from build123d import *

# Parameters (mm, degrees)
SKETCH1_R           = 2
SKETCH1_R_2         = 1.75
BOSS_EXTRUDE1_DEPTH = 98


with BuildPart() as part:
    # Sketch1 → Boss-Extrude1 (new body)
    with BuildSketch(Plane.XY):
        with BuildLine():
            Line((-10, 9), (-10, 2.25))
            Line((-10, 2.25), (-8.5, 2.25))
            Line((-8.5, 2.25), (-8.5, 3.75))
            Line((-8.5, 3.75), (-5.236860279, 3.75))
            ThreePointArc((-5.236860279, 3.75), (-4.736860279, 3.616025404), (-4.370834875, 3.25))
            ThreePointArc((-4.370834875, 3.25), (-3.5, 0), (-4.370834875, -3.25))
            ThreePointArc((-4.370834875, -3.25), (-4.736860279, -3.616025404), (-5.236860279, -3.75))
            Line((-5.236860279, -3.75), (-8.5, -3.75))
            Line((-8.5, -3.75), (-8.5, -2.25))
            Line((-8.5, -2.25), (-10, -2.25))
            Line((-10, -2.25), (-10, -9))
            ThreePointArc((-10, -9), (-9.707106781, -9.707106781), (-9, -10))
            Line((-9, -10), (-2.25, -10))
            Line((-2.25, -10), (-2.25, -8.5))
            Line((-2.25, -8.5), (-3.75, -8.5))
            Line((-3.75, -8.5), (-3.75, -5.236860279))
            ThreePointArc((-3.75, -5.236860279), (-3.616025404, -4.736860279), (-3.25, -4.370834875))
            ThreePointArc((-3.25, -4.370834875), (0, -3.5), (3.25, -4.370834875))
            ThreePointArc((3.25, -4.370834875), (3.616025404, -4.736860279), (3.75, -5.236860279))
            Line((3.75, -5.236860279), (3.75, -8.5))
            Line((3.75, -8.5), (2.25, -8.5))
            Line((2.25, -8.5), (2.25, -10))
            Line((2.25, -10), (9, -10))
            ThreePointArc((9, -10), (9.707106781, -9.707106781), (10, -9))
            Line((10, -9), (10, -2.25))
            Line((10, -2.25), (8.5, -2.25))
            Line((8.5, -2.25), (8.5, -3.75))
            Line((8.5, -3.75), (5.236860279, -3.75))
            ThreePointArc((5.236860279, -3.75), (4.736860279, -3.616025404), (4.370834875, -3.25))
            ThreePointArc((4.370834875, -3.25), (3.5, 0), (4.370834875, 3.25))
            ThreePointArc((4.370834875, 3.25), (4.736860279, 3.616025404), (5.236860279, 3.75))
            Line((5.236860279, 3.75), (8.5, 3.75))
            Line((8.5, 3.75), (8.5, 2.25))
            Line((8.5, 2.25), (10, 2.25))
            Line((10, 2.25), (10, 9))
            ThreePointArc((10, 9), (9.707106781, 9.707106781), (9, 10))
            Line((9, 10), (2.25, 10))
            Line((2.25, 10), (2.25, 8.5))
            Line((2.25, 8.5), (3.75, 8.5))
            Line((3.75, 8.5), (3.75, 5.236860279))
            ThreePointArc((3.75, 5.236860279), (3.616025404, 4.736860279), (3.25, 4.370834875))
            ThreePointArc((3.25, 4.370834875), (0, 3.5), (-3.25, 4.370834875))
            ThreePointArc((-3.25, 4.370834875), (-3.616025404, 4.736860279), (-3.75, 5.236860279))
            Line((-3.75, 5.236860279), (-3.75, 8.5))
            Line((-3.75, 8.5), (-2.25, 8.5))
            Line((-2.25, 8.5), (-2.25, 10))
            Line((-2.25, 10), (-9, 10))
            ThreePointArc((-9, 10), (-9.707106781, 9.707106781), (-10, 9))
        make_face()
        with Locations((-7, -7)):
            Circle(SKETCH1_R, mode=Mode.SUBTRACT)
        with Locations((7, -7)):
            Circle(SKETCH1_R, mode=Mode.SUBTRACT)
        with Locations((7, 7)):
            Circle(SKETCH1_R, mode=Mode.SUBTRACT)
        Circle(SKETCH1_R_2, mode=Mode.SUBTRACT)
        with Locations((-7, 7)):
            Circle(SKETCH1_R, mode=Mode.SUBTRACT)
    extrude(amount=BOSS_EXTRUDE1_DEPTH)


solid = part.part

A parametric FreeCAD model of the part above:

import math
import FreeCAD as App
import Part
import Sketcher

V = App.Vector
Q = App.Units.Quantity

doc = App.newDocument("Part")
body = doc.addObject("PartDesign::Body", "Body")

sketch1 = body.newObject("Sketcher::SketchObject", "Sketch")
sketch1.AttachmentSupport = (doc.getObject("XY_Plane"), [""])
sketch1.MapMode = "FlatFace"
sketch1.addGeometry(Part.LineSegment(V(-10, 9, 0), V(-10, 2.2, 0)), False)
sketch1.addGeometry(Part.LineSegment(V(-10, 2.2, 0), V(-8.5, 2.2, 0)), False)
sketch1.addGeometry(Part.LineSegment(V(-8.5, 2.2, 0), V(-8.5, 3.8, 0)), False)
sketch1.addGeometry(Part.LineSegment(V(-8.5, 3.8, 0), V(-5.2, 3.8, 0)), False)
sketch1.addGeometry(Part.ArcOfCircle(Part.Circle(V(-5.2, 2.8, 0), V(0, 0, 1), 1), math.radians(30), math.radians(90)), False)
sketch1.addGeometry(Part.ArcOfCircle(Part.Circle(V(-10, 0, 0), V(0, 0, 1), 6.5), math.radians(-30), math.radians(30)), False)
sketch1.addGeometry(Part.ArcOfCircle(Part.Circle(V(-5.2, -2.8, 0), V(0, 0, 1), 1), math.radians(-90), math.radians(-30)), False)
sketch1.addGeometry(Part.LineSegment(V(-5.2, -3.8, 0), V(-8.5, -3.8, 0)), False)
sketch1.addGeometry(Part.LineSegment(V(-8.5, -3.8, 0), V(-8.5, -2.2, 0)), False)
sketch1.addGeometry(Part.LineSegment(V(-8.5, -2.2, 0), V(-10, -2.2, 0)), False)
sketch1.addGeometry(Part.LineSegment(V(-10, -2.2, 0), V(-10, -9, 0)), False)
sketch1.addGeometry(Part.ArcOfCircle(Part.Circle(V(-9, -9, 0), V(0, 0, 1), 1), math.radians(-180), math.radians(-90)), False)
sketch1.addGeometry(Part.LineSegment(V(-9, -10, 0), V(-2.2, -10, 0)), False)
sketch1.addGeometry(Part.LineSegment(V(-2.2, -10, 0), V(-2.2, -8.5, 0)), False)
sketch1.addGeometry(Part.LineSegment(V(-2.2, -8.5, 0), V(-3.8, -8.5, 0)), False)
sketch1.addGeometry(Part.LineSegment(V(-3.8, -8.5, 0), V(-3.8, -5.2, 0)), False)
sketch1.addGeometry(Part.ArcOfCircle(Part.Circle(V(-2.8, -5.2, 0), V(0, 0, 1), 1), math.radians(120), math.radians(180)), False)
sketch1.addGeometry(Part.ArcOfCircle(Part.Circle(V(0, -10, 0), V(0, 0, 1), 6.5), math.radians(60), math.radians(120)), False)
sketch1.addGeometry(Part.ArcOfCircle(Part.Circle(V(2.8, -5.2, 0), V(0, 0, 1), 1), math.radians(0), math.radians(60)), False)
sketch1.addGeometry(Part.LineSegment(V(3.8, -5.2, 0), V(3.8, -8.5, 0)), False)
sketch1.addGeometry(Part.LineSegment(V(3.8, -8.5, 0), V(2.2, -8.5, 0)), False)
sketch1.addGeometry(Part.LineSegment(V(2.2, -8.5, 0), V(2.2, -10, 0)), False)
sketch1.addGeometry(Part.LineSegment(V(2.2, -10, 0), V(9, -10, 0)), False)
sketch1.addGeometry(Part.ArcOfCircle(Part.Circle(V(9, -9, 0), V(0, 0, 1), 1), math.radians(-90), math.radians(0)), False)
sketch1.addGeometry(Part.LineSegment(V(10, -9, 0), V(10, -2.2, 0)), False)
sketch1.addGeometry(Part.LineSegment(V(10, -2.2, 0), V(8.5, -2.2, 0)), False)
sketch1.addGeometry(Part.LineSegment(V(8.5, -2.2, 0), V(8.5, -3.8, 0)), False)
sketch1.addGeometry(Part.LineSegment(V(8.5, -3.8, 0), V(5.2, -3.8, 0)), False)
sketch1.addGeometry(Part.ArcOfCircle(Part.Circle(V(5.2, -2.8, 0), V(0, 0, 1), 1), math.radians(-150), math.radians(-90)), False)
sketch1.addGeometry(Part.ArcOfCircle(Part.Circle(V(10, 0, 0), V(0, 0, 1), 6.5), math.radians(150), math.radians(210)), False)
sketch1.addGeometry(Part.ArcOfCircle(Part.Circle(V(5.2, 2.8, 0), V(0, 0, 1), 1), math.radians(90), math.radians(150)), False)
sketch1.addGeometry(Part.LineSegment(V(5.2, 3.8, 0), V(8.5, 3.8, 0)), False)
sketch1.addGeometry(Part.LineSegment(V(8.5, 3.8, 0), V(8.5, 2.2, 0)), False)
sketch1.addGeometry(Part.LineSegment(V(8.5, 2.2, 0), V(10, 2.2, 0)), False)
sketch1.addGeometry(Part.LineSegment(V(10, 2.2, 0), V(10, 9, 0)), False)
sketch1.addGeometry(Part.ArcOfCircle(Part.Circle(V(9, 9, 0), V(0, 0, 1), 1), math.radians(0), math.radians(90)), False)
sketch1.addGeometry(Part.LineSegment(V(9, 10, 0), V(2.2, 10, 0)), False)
sketch1.addGeometry(Part.LineSegment(V(2.2, 10, 0), V(2.2, 8.5, 0)), False)
sketch1.addGeometry(Part.LineSegment(V(2.2, 8.5, 0), V(3.8, 8.5, 0)), False)
sketch1.addGeometry(Part.LineSegment(V(3.8, 8.5, 0), V(3.8, 5.2, 0)), False)
sketch1.addGeometry(Part.ArcOfCircle(Part.Circle(V(2.8, 5.2, 0), V(0, 0, 1), 1), math.radians(-60), math.radians(0)), False)
sketch1.addGeometry(Part.ArcOfCircle(Part.Circle(V(0, 10, 0), V(0, 0, 1), 6.5), math.radians(-120), math.radians(-60)), False)
sketch1.addGeometry(Part.ArcOfCircle(Part.Circle(V(-2.8, 5.2, 0), V(0, 0, 1), 1), math.radians(180), math.radians(240)), False)
sketch1.addGeometry(Part.LineSegment(V(-3.8, 5.2, 0), V(-3.8, 8.5, 0)), False)
sketch1.addGeometry(Part.LineSegment(V(-3.8, 8.5, 0), V(-2.2, 8.5, 0)), False)
sketch1.addGeometry(Part.LineSegment(V(-2.2, 8.5, 0), V(-2.2, 10, 0)), False)
sketch1.addGeometry(Part.LineSegment(V(-2.2, 10, 0), V(-9, 10, 0)), False)
sketch1.addGeometry(Part.ArcOfCircle(Part.Circle(V(-9, 9, 0), V(0, 0, 1), 1), math.radians(90), math.radians(180)), False)
sketch1.addGeometry(Part.Circle(V(-7, -7, 0), V(0, 0, 1), 2), False)
sketch1.addGeometry(Part.Circle(V(7, -7, 0), V(0, 0, 1), 2), False)
sketch1.addGeometry(Part.Circle(V(-7, 7, 0), V(0, 0, 1), 2), False)
sketch1.addGeometry(Part.Circle(V(0, 0, 0), V(0, 0, 1), 1.8), False)
sketch1.addGeometry(Part.Circle(V(7, 7, 0), V(0, 0, 1), 2), False)
sketch1.addConstraint(Sketcher.Constraint("Coincident", 0, 2, 1, 1))
sketch1.addConstraint(Sketcher.Constraint("Coincident", 1, 2, 2, 1))
sketch1.addConstraint(Sketcher.Constraint("Coincident", 2, 2, 3, 1))
sketch1.addConstraint(Sketcher.Constraint("Tangent", 3, 2, 4, 2))
sketch1.addConstraint(Sketcher.Constraint("Tangent", 4, 1, 5, 2))
sketch1.addConstraint(Sketcher.Constraint("Tangent", 5, 1, 6, 2))
sketch1.addConstraint(Sketcher.Constraint("Tangent", 6, 1, 7, 1))
sketch1.addConstraint(Sketcher.Constraint("Coincident", 7, 2, 8, 1))
sketch1.addConstraint(Sketcher.Constraint("Coincident", 8, 2, 9, 1))
sketch1.addConstraint(Sketcher.Constraint("Coincident", 9, 2, 10, 1))
sketch1.addConstraint(Sketcher.Constraint("Tangent", 10, 2, 11, 1))
sketch1.addConstraint(Sketcher.Constraint("Tangent", 11, 2, 12, 1))
sketch1.addConstraint(Sketcher.Constraint("Coincident", 12, 2, 13, 1))
sketch1.addConstraint(Sketcher.Constraint("Coincident", 13, 2, 14, 1))
sketch1.addConstraint(Sketcher.Constraint("Coincident", 14, 2, 15, 1))
sketch1.addConstraint(Sketcher.Constraint("Tangent", 15, 2, 16, 2))
sketch1.addConstraint(Sketcher.Constraint("Tangent", 16, 1, 17, 2))
sketch1.addConstraint(Sketcher.Constraint("Tangent", 17, 1, 18, 2))
sketch1.addConstraint(Sketcher.Constraint("Tangent", 18, 1, 19, 1))
sketch1.addConstraint(Sketcher.Constraint("Coincident", 19, 2, 20, 1))
sketch1.addConstraint(Sketcher.Constraint("Coincident", 20, 2, 21, 1))
sketch1.addConstraint(Sketcher.Constraint("Coincident", 21, 2, 22, 1))
sketch1.addConstraint(Sketcher.Constraint("Tangent", 22, 2, 23, 1))
sketch1.addConstraint(Sketcher.Constraint("Tangent", 23, 2, 24, 1))
sketch1.addConstraint(Sketcher.Constraint("Coincident", 24, 2, 25, 1))
sketch1.addConstraint(Sketcher.Constraint("Coincident", 25, 2, 26, 1))
sketch1.addConstraint(Sketcher.Constraint("Coincident", 26, 2, 27, 1))
sketch1.addConstraint(Sketcher.Constraint("Tangent", 27, 2, 28, 2))
sketch1.addConstraint(Sketcher.Constraint("Tangent", 28, 1, 29, 2))
sketch1.addConstraint(Sketcher.Constraint("Tangent", 29, 1, 30, 2))
sketch1.addConstraint(Sketcher.Constraint("Tangent", 30, 1, 31, 1))
sketch1.addConstraint(Sketcher.Constraint("Coincident", 31, 2, 32, 1))
sketch1.addConstraint(Sketcher.Constraint("Coincident", 32, 2, 33, 1))
sketch1.addConstraint(Sketcher.Constraint("Coincident", 33, 2, 34, 1))
sketch1.addConstraint(Sketcher.Constraint("Tangent", 34, 2, 35, 1))
sketch1.addConstraint(Sketcher.Constraint("Tangent", 35, 2, 36, 1))
sketch1.addConstraint(Sketcher.Constraint("Coincident", 36, 2, 37, 1))
sketch1.addConstraint(Sketcher.Constraint("Coincident", 37, 2, 38, 1))
sketch1.addConstraint(Sketcher.Constraint("Coincident", 38, 2, 39, 1))
sketch1.addConstraint(Sketcher.Constraint("Tangent", 39, 2, 40, 2))
sketch1.addConstraint(Sketcher.Constraint("Tangent", 40, 1, 41, 2))
sketch1.addConstraint(Sketcher.Constraint("Tangent", 41, 1, 42, 2))
sketch1.addConstraint(Sketcher.Constraint("Tangent", 42, 1, 43, 1))
sketch1.addConstraint(Sketcher.Constraint("Coincident", 43, 2, 44, 1))
sketch1.addConstraint(Sketcher.Constraint("Coincident", 44, 2, 45, 1))
sketch1.addConstraint(Sketcher.Constraint("Coincident", 45, 2, 46, 1))
sketch1.addConstraint(Sketcher.Constraint("Tangent", 46, 2, 47, 1))
sketch1.addConstraint(Sketcher.Constraint("Tangent", 47, 2, 0, 1))
sketch1.addConstraint(Sketcher.Constraint("Vertical", 0))
sketch1.addConstraint(Sketcher.Constraint("Horizontal", 1))
sketch1.addConstraint(Sketcher.Constraint("Vertical", 2))
sketch1.addConstraint(Sketcher.Constraint("Horizontal", 3))
sketch1.addConstraint(Sketcher.Constraint("Horizontal", 7))
sketch1.addConstraint(Sketcher.Constraint("Vertical", 8))
sketch1.addConstraint(Sketcher.Constraint("Horizontal", 9))
sketch1.addConstraint(Sketcher.Constraint("Vertical", 10))
sketch1.addConstraint(Sketcher.Constraint("Horizontal", 12))
sketch1.addConstraint(Sketcher.Constraint("Vertical", 13))
sketch1.addConstraint(Sketcher.Constraint("Horizontal", 14))
sketch1.addConstraint(Sketcher.Constraint("Vertical", 15))
sketch1.addConstraint(Sketcher.Constraint("Vertical", 19))
sketch1.addConstraint(Sketcher.Constraint("Horizontal", 20))
sketch1.addConstraint(Sketcher.Constraint("Vertical", 21))
sketch1.addConstraint(Sketcher.Constraint("Horizontal", 22))
sketch1.addConstraint(Sketcher.Constraint("Vertical", 24))
sketch1.addConstraint(Sketcher.Constraint("Horizontal", 25))
sketch1.addConstraint(Sketcher.Constraint("Vertical", 26))
sketch1.addConstraint(Sketcher.Constraint("Horizontal", 27))
sketch1.addConstraint(Sketcher.Constraint("Horizontal", 31))
sketch1.addConstraint(Sketcher.Constraint("Vertical", 32))
sketch1.addConstraint(Sketcher.Constraint("Horizontal", 33))
sketch1.addConstraint(Sketcher.Constraint("Vertical", 34))
sketch1.addConstraint(Sketcher.Constraint("Horizontal", 36))
sketch1.addConstraint(Sketcher.Constraint("Vertical", 37))
sketch1.addConstraint(Sketcher.Constraint("Horizontal", 38))
sketch1.addConstraint(Sketcher.Constraint("Vertical", 39))
sketch1.addConstraint(Sketcher.Constraint("Vertical", 43))
sketch1.addConstraint(Sketcher.Constraint("Horizontal", 44))
sketch1.addConstraint(Sketcher.Constraint("Vertical", 45))
sketch1.addConstraint(Sketcher.Constraint("Horizontal", 46))
sketch1.addConstraint(Sketcher.Constraint("Coincident", 51, 3, -1, 1))
sketch1.addConstraint(Sketcher.Constraint("Equal", 4, 6))
sketch1.addConstraint(Sketcher.Constraint("Equal", 6, 11))
sketch1.addConstraint(Sketcher.Constraint("Equal", 11, 16))
sketch1.addConstraint(Sketcher.Constraint("Equal", 5, 17))
sketch1.addConstraint(Sketcher.Constraint("Equal", 16, 18))
sketch1.addConstraint(Sketcher.Constraint("Equal", 18, 23))
sketch1.addConstraint(Sketcher.Constraint("Equal", 23, 28))
sketch1.addConstraint(Sketcher.Constraint("Equal", 17, 29))
sketch1.addConstraint(Sketcher.Constraint("Equal", 28, 30))
sketch1.addConstraint(Sketcher.Constraint("Equal", 30, 35))
sketch1.addConstraint(Sketcher.Constraint("Equal", 35, 40))
sketch1.addConstraint(Sketcher.Constraint("Equal", 29, 41))
sketch1.addConstraint(Sketcher.Constraint("Equal", 40, 42))
sketch1.addConstraint(Sketcher.Constraint("Equal", 42, 47))
sketch1.addConstraint(Sketcher.Constraint("Equal", 48, 49))
sketch1.addConstraint(Sketcher.Constraint("Equal", 49, 50))
sketch1.addConstraint(Sketcher.Constraint("Equal", 50, 52))
sketch1.addConstraint(Sketcher.Constraint("Symmetric", 4, 3, 28, 3, -1, 1))
sketch1.addConstraint(Sketcher.Constraint("Symmetric", 6, 3, 30, 3, -1, 1))
sketch1.addConstraint(Sketcher.Constraint("Symmetric", 11, 3, 35, 3, -1, 1))
sketch1.addConstraint(Sketcher.Constraint("Symmetric", 16, 3, 40, 3, -1, 1))
sketch1.addConstraint(Sketcher.Constraint("Symmetric", 18, 3, 42, 3, -1, 1))
sketch1.addConstraint(Sketcher.Constraint("Symmetric", 23, 3, 47, 3, -1, 1))
sketch1.addConstraint(Sketcher.Constraint("Symmetric", 49, 3, 50, 3, -1, 1))
sketch1.addConstraint(Sketcher.Constraint("Symmetric", 48, 3, 52, 3, -1, 1))
sketch1.addConstraint(Sketcher.Constraint("Symmetric", 1, 2, 25, 2, -1, 1))
sketch1.addConstraint(Sketcher.Constraint("Symmetric", 8, 2, 32, 2, -1, 1))
sketch1.addConstraint(Sketcher.Constraint("Symmetric", 13, 2, 37, 2, -1, 1))
sketch1.addConstraint(Sketcher.Constraint("Symmetric", 20, 2, 44, 2, -1, 1))
sketch1.addConstraint(Sketcher.Constraint("Symmetric", 16, 3, 18, 3, -2))
sketch1.addConstraint(Sketcher.Constraint("Symmetric", 11, 3, 23, 3, -2))
sketch1.addConstraint(Sketcher.Constraint("Symmetric", 6, 3, 28, 3, -2))
sketch1.addConstraint(Sketcher.Constraint("Symmetric", 48, 3, 49, 3, -2))
sketch1.addConstraint(Sketcher.Constraint("Symmetric", 13, 2, 20, 2, -2))
sketch1.addConstraint(Sketcher.Constraint("Symmetric", 8, 2, 25, 2, -2))
sketch1.addConstraint(Sketcher.Constraint("Horizontal", 17, 3, 11, 2))
sketch1.addConstraint(Sketcher.Constraint("Vertical", 5, 3, 0, 2))
sketch1.addConstraint(Sketcher.Constraint("Equal", 9, 14))
sketch1.addConstraint(Sketcher.Constraint("Equal", 46, 0))
sketch1.addConstraint(Sketcher.Constraint("Equal", 44, 2))
sketch1.addConstraint(Sketcher.Constraint("Equal", 8, 13))
sketch1.addConstraint(Sketcher.Constraint("Equal", 31, 15))
sketch1.addConstraint(Sketcher.Constraint("Diameter", 48, Q("4 mm")))
sketch1.addConstraint(Sketcher.Constraint("Radius", 4, Q("1 mm")))
sketch1.addConstraint(Sketcher.Constraint("Diameter", 51, Q("3.5 mm")))
sketch1.addConstraint(Sketcher.Constraint("Radius", 5, Q("6.5 mm")))
sketch1.addConstraint(Sketcher.Constraint("DistanceX", 1, 1, 1, 2, Q("1.5 mm")))
sketch1.addConstraint(Sketcher.Constraint("DistanceX", 5, 3, -1, 1, Q("10 mm")))
sketch1.addConstraint(Sketcher.Constraint("DistanceX", 48, 3, -1, 1, Q("7 mm")))
sketch1.addConstraint(Sketcher.Constraint("DistanceY", 48, 3, -1, 1, Q("7 mm")))
sketch1.addConstraint(Sketcher.Constraint("DistanceX", 12, 1, 12, 2, Q("6.75 mm")))
pad1 = body.newObject("PartDesign::Pad", "Pad")
pad1.Profile = sketch1
pad1.Length = 98

doc.recompute()
